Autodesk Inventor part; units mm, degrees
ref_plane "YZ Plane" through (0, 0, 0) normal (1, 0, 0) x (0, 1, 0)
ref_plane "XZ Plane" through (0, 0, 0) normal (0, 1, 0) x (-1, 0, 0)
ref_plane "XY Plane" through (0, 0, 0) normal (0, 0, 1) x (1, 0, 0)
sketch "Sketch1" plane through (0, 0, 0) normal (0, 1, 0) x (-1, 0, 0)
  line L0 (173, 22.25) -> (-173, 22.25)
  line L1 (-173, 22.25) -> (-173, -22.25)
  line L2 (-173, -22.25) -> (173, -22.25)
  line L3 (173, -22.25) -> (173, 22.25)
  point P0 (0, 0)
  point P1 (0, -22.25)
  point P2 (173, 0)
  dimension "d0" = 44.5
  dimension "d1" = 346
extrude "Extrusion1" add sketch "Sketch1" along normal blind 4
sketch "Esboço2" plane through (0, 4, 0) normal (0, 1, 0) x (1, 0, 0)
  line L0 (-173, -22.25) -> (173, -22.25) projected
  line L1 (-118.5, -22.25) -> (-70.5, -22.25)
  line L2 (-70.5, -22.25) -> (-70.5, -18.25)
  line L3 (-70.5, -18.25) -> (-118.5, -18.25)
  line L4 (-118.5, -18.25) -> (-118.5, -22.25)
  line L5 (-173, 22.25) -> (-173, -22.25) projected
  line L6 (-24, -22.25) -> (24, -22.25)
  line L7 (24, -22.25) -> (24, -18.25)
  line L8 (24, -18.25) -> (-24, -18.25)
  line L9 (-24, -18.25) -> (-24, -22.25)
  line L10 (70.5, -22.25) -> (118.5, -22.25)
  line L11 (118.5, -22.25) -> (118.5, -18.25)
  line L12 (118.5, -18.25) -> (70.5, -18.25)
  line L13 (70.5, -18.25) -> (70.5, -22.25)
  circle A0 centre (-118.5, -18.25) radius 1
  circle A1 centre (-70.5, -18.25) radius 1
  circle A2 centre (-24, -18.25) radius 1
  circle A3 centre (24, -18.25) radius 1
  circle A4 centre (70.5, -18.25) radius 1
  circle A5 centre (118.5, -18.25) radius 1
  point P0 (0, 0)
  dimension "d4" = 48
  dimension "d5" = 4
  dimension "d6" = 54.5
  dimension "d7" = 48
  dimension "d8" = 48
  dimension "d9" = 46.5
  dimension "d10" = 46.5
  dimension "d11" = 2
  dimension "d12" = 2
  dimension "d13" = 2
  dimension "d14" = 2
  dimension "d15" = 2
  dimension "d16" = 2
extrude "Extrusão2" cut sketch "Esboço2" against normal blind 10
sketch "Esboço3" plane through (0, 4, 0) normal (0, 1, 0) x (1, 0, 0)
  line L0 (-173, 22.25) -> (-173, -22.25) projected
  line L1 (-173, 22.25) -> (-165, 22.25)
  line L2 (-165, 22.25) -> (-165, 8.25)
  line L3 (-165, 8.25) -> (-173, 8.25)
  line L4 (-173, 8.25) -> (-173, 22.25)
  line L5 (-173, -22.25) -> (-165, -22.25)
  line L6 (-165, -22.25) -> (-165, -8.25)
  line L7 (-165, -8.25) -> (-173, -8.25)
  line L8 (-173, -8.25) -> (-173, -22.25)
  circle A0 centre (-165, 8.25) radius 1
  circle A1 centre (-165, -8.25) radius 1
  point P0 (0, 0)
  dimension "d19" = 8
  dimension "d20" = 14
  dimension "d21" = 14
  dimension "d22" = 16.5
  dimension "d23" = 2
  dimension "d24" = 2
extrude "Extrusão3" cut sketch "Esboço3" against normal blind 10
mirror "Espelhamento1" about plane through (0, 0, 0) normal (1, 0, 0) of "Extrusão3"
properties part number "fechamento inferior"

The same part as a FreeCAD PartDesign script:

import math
import FreeCAD as App
import Part
import Sketcher
from FreeCAD import Vector


def add_polygon(sketch, points):
    """Adds a closed chain of lines whose ends are joined by coincident constraints."""
    first, n = sketch.GeometryCount, len(points)
    for a, b in zip(points, points[1:] + points[:1]):
        sketch.addGeometry(Part.LineSegment(App.Vector(*a, 0), App.Vector(*b, 0)), False)
    for i in range(n):
        sketch.addConstraint(Sketcher.Constraint("Coincident", first + i, 2, first + (i + 1) % n, 1))

doc = App.newDocument("Part")
body = doc.addObject("PartDesign::Body", "Body")

sketch1 = body.newObject("Sketcher::SketchObject", "Sketch")
sketch1.AttachmentSupport = (doc.getObject("XZ_Plane"), [""])
sketch1.MapMode = "FlatFace"
add_polygon(sketch1, [(-173, -22), (-173, 22), (173, 22), (173, -22)])
sketch1.addConstraint([
    Sketcher.Constraint("Vertical", 0),
    Sketcher.Constraint("Horizontal", 1),
    Sketcher.Constraint("Vertical", 2),
    Sketcher.Constraint("Horizontal", 3),
    Sketcher.Constraint("Symmetric", 0, 2, 2, 2, -1, 1),
    Sketcher.Constraint("DistanceX", 1, 1, 1, 2, 346.0),
    Sketcher.Constraint("DistanceY", 0, 1, 0, 2, 44.5),
])
pad1 = body.newObject("PartDesign::Pad", "Pad")
pad1.Profile = sketch1
pad1.Length = 4
pad1.Reversed = True

sketch2 = body.newObject("Sketcher::SketchObject", "Sketch001")
sketch2.AttachmentSupport = (doc.getObject("XZ_Plane"), [""])
sketch2.MapMode = "FlatFace"
sketch2.AttachmentOffset = App.Placement(Vector(0, 0, -4), App.Rotation())
sketch2.addGeometry([
    Part.LineSegment(Vector(-118.5, 19.2, 0), Vector(-118.5, 22.2, 0)),
    Part.LineSegment(Vector(-118.5, 22.2, 0), Vector(-70.5, 22.2, 0)),
    Part.LineSegment(Vector(-70.5, 22.2, 0), Vector(-70.5, 19.2, 0)),
    Part.ArcOfCircle(Part.Circle(Vector(-70.5, 18.2, 0), Vector(0, 0, 1), 1), math.radians(180), math.radians(450)),
    Part.LineSegment(Vector(-71.5, 18.2, 0), Vector(-117.5, 18.2, 0)),
    Part.ArcOfCircle(Part.Circle(Vector(-118.5, 18.2, 0), Vector(0, 0, 1), 1), math.radians(90), math.radians(360)),
    Part.LineSegment(Vector(70.5, 19.2, 0), Vector(70.5, 22.2, 0)),
    Part.LineSegment(Vector(70.5, 22.2, 0), Vector(118.5, 22.2, 0)),
    Part.LineSegment(Vector(118.5, 22.2, 0), Vector(118.5, 19.2, 0)),
    Part.ArcOfCircle(Part.Circle(Vector(118.5, 18.2, 0), Vector(0, 0, 1), 1), math.radians(180), math.radians(450)),
    Part.LineSegment(Vector(117.5, 18.2, 0), Vector(71.5, 18.2, 0)),
    Part.ArcOfCircle(Part.Circle(Vector(70.5, 18.2, 0), Vector(0, 0, 1), 1), math.radians(90), math.radians(360)),
    Part.LineSegment(Vector(-24, 19.2, 0), Vector(-24, 22.2, 0)),
    Part.LineSegment(Vector(-24, 22.2, 0), Vector(24, 22.2, 0)),
    Part.LineSegment(Vector(24, 22.2, 0), Vector(24, 19.2, 0)),
    Part.ArcOfCircle(Part.Circle(Vector(24, 18.2, 0), Vector(0, 0, 1), 1), math.radians(180), math.radians(450)),
    Part.LineSegment(Vector(23, 18.2, 0), Vector(-23, 18.2, 0)),
    Part.ArcOfCircle(Part.Circle(Vector(-24, 18.2, 0), Vector(0, 0, 1), 1), math.radians(90), math.radians(360)),
], False)
sketch2.addConstraint([
    Sketcher.Constraint("Coincident", 0, 2, 1, 1),
    Sketcher.Constraint("Coincident", 1, 2, 2, 1),
    Sketcher.Constraint("Coincident", 2, 2, 3, 2),
    Sketcher.Constraint("Coincident", 3, 1, 4, 1),
    Sketcher.Constraint("Coincident", 4, 2, 5, 2),
    Sketcher.Constraint("Coincident", 5, 1, 0, 1),
    Sketcher.Constraint("Coincident", 6, 2, 7, 1),
    Sketcher.Constraint("Coincident", 7, 2, 8, 1),
    Sketcher.Constraint("Coincident", 8, 2, 9, 2),
    Sketcher.Constraint("Coincident", 9, 1, 10, 1),
    Sketcher.Constraint("Coincident", 10, 2, 11, 2),
    Sketcher.Constraint("Coincident", 11, 1, 6, 1),
    Sketcher.Constraint("Coincident", 12, 2, 13, 1),
    Sketcher.Constraint("Coincident", 13, 2, 14, 1),
    Sketcher.Constraint("Coincident", 14, 2, 15, 2),
    Sketcher.Constraint("Coincident", 15, 1, 16, 1),
    Sketcher.Constraint("Coincident", 16, 2, 17, 2),
    Sketcher.Constraint("Coincident", 17, 1, 12, 1),
    Sketcher.Constraint("Vertical", 0),
    Sketcher.Constraint("Horizontal", 1),
    Sketcher.Constraint("Vertical", 2),
    Sketcher.Constraint("Horizontal", 4),
    Sketcher.Constraint("Vertical", 6),
    Sketcher.Constraint("Horizontal", 7),
    Sketcher.Constraint("Vertical", 8),
    Sketcher.Constraint("Horizontal", 10),
    Sketcher.Constraint("Vertical", 12),
    Sketcher.Constraint("Horizontal", 13),
    Sketcher.Constraint("Vertical", 14),
    Sketcher.Constraint("Horizontal", 16),
    Sketcher.Constraint("Equal", 3, 5),
    Sketcher.Constraint("Equal", 5, 9),
    Sketcher.Constraint("Equal", 9, 11),
    Sketcher.Constraint("Equal", 11, 15),
    Sketcher.Constraint("Equal", 15, 17),
    Sketcher.Constraint("Symmetric", 5, 3, 9, 3, -2),
    Sketcher.Constraint("Symmetric", 3, 3, 11, 3, -2),
    Sketcher.Constraint("Symmetric", 15, 3, 17, 3, -2),
    Sketcher.Constraint("Symmetric", 1, 2, 6, 2, -2),
    Sketcher.Constraint("Horizontal", 3, 3, 5, 3),
    Sketcher.Constraint("Horizontal", 11, 3, 15, 3),
    Sketcher.Constraint("Horizontal", 17, 3, 3, 1),
    Sketcher.Constraint("Horizontal", 4, 2, 9, 1),
    Sketcher.Constraint("Horizontal", 7, 2, 12, 2),
    Sketcher.Constraint("Horizontal", 10, 2, 15, 1),
    Sketcher.Constraint("Vertical", 5, 3, 0, 2),
    Sketcher.Constraint("Vertical", 3, 3, 1, 2),
    Sketcher.Constraint("Vertical", 9, 3, 7, 2),
    Sketcher.Constraint("Vertical", 17, 3, 12, 2),
    Sketcher.Constraint("Vertical", 15, 3, 13, 2),
    Sketcher.Constraint("Equal", 7, 13),
    Sketcher.Constraint("Radius", 3, 1.0),
    Sketcher.Constraint("DistanceX", 1, 1, 1, 2, 48.0),
    Sketcher.Constraint("DistanceY", 5, 3, 0, 2, 4.0),
    Sketcher.Constraint("DistanceX", 15, 3, 11, 3, 46.5),
    Sketcher.Constraint("DistanceY", -1, 1, 3, 3, 18.25),
])
pocket1 = body.newObject("PartDesign::Pocket", "Pocket")
pocket1.Profile = sketch2
pocket1.Length = 10
pocket1.Reversed = True

sketch3 = body.newObject("Sketcher::SketchObject", "Sketch002")
sketch3.AttachmentSupport = (doc.getObject("XZ_Plane"), [""])
sketch3.MapMode = "FlatFace"
sketch3.AttachmentOffset = App.Placement(Vector(0, 0, -4), App.Rotation())
sketch3.addGeometry([
    Part.LineSegment(Vector(-165, -22.2, 0), Vector(-173, -22.2, 0)),
    Part.LineSegment(Vector(-173, -22.2, 0), Vector(-173, -8.2, 0)),
    Part.LineSegment(Vector(-173, -8.2, 0), Vector(-166, -8.2, 0)),
    Part.ArcOfCircle(Part.Circle(Vector(-165, -8.2, 0), Vector(0, 0, 1), 1), math.radians(-90), math.radians(180)),
    Part.LineSegment(Vector(-165, -9.2, 0), Vector(-165, -22.2, 0)),
    Part.LineSegment(Vector(-166, 8.2, 0), Vector(-173, 8.2, 0)),
    Part.LineSegment(Vector(-173, 8.2, 0), Vector(-173, 22.2, 0)),
    Part.LineSegment(Vector(-173, 22.2, 0), Vector(-165, 22.2, 0)),
    Part.LineSegment(Vector(-165, 22.2, 0), Vector(-165, 9.2, 0)),
    Part.ArcOfCircle(Part.Circle(Vector(-165, 8.2, 0), Vector(0, 0, 1), 1), math.radians(180), math.radians(450)),
], False)
sketch3.addConstraint([
    Sketcher.Constraint("Coincident", 0, 2, 1, 1),
    Sketcher.Constraint("Coincident", 1, 2, 2, 1),
    Sketcher.Constraint("Coincident", 2, 2, 3, 2),
    Sketcher.Constraint("Coincident", 3, 1, 4, 1),
    Sketcher.Constraint("Coincident", 4, 2, 0, 1),
    Sketcher.Constraint("Coincident", 5, 2, 6, 1),
    Sketcher.Constraint("Coincident", 6, 2, 7, 1),
    Sketcher.Constraint("Coincident", 7, 2, 8, 1),
    Sketcher.Constraint("Coincident", 8, 2, 9, 2),
    Sketcher.Constraint("Coincident", 9, 1, 5, 1),
    Sketcher.Constraint("Horizontal", 0),
    Sketcher.Constraint("Vertical", 1),
    Sketcher.Constraint("Horizontal", 2),
    Sketcher.Constraint("Vertical", 4),
    Sketcher.Constraint("Horizontal", 5),
    Sketcher.Constraint("Vertical", 6),
    Sketcher.Constraint("Horizontal", 7),
    Sketcher.Constraint("Vertical", 8),
    Sketcher.Constraint("Equal", 3, 9),
    Sketcher.Constraint("Symmetric", 3, 3, 9, 3, -1),
    Sketcher.Constraint("Symmetric", 1, 2, 5, 2, -1),
    Sketcher.Constraint("Symmetric", 4, 2, 7, 2, -1),
    Sketcher.Constraint("Horizontal", 3, 3, 1, 2),
    Sketcher.Constraint("Vertical", 9, 3, 3, 1),
    Sketcher.Constraint("Radius", 3, 1.0),
    Sketcher.Constraint("DistanceX", 0, 2, 0, 1, 8.0),
    Sketcher.Constraint("DistanceY", 1, 1, 1, 2, 14.0),
    Sketcher.Constraint("DistanceY", 3, 3, 9, 3, 16.5),
    Sketcher.Constraint("DistanceX", 3, 3, -1, 1, 165.0),
])
pocket2 = body.newObject("PartDesign::Pocket", "Pocket001")
pocket2.Profile = sketch3
pocket2.Length = 10
pocket2.Reversed = True
doc.recompute()

mirrored = body.newObject("PartDesign::Mirrored", "Mirrored")
mirrored.Originals = [pocket2]
mirrored.MirrorPlane = (doc.getObject("YZ_Plane"), [""])
body.Tip = mirrored

doc.recompute()
